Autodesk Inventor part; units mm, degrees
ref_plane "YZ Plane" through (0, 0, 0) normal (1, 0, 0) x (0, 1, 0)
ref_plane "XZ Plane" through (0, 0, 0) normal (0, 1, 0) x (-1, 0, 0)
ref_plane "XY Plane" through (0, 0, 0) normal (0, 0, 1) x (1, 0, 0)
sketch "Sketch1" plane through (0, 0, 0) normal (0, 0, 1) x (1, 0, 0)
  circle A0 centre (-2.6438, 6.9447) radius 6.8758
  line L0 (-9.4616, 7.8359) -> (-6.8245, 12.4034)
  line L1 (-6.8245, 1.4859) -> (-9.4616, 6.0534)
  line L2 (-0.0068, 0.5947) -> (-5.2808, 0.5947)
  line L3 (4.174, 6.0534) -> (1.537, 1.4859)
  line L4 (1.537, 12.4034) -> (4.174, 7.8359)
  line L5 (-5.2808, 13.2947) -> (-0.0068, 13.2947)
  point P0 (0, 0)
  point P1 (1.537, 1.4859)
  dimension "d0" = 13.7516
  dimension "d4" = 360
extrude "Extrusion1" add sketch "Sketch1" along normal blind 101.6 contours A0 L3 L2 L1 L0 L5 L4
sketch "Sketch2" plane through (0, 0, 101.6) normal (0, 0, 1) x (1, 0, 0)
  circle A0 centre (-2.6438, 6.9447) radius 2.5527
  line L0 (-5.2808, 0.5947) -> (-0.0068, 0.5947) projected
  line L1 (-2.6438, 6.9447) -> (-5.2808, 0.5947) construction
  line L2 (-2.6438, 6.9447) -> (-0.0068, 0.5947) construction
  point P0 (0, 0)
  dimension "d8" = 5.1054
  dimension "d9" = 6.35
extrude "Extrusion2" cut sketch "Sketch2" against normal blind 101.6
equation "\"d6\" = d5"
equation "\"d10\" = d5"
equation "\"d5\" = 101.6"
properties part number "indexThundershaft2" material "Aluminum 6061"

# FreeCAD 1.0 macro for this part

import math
import FreeCAD as App
import Part
import Sketcher
from FreeCAD import Vector
Q = App.Units.Quantity

doc = App.newDocument("Part")
body = doc.addObject("PartDesign::Body", "Body")

sketch1 = body.newObject("Sketcher::SketchObject", "Sketch")
sketch1.AttachmentSupport = (doc.getObject("XY_Plane"), [""])
sketch1.MapMode = "FlatFace"
sketch1.addGeometry([
    Part.ArcOfCircle(Part.Circle(Vector(-2.6438, 6.9447, 0), Vector(0, 0, 1), 6.8758), math.radians(-7.448114), math.radians(7.447287)),
    Part.LineSegment(Vector(4.174, 7.8359, 0), Vector(1.537, 12.4034, 0)),
    Part.ArcOfCircle(Part.Circle(Vector(-2.6438, 6.9447, 0), Vector(0, 0, 1), 6.8758), math.radians(52.551618), math.radians(67.448081)),
    Part.LineSegment(Vector(-0.0068, 13.2947, 0), Vector(-5.2808, 13.2947, 0)),
    Part.ArcOfCircle(Part.Circle(Vector(-2.6438, 6.9447, 0), Vector(0, 0, 1), 6.8758), math.radians(112.551919), math.radians(127.447721)),
    Part.LineSegment(Vector(-6.8245, 12.4034, 0), Vector(-9.4616, 7.8359, 0)),
    Part.ArcOfCircle(Part.Circle(Vector(-2.6438, 6.9447, 0), Vector(0, 0, 1), 6.8758), math.radians(172.552713), math.radians(187.448114)),
    Part.LineSegment(Vector(-9.4616, 6.0534, 0), Vector(-6.8245, 1.4859, 0)),
    Part.ArcOfCircle(Part.Circle(Vector(-2.6438, 6.9447, 0), Vector(0, 0, 1), 6.8758), math.radians(-127.447214), math.radians(-112.551919)),
    Part.LineSegment(Vector(-5.2808, 0.5947, 0), Vector(-0.0068, 0.5947, 0)),
    Part.ArcOfCircle(Part.Circle(Vector(-2.6438, 6.9447, 0), Vector(0, 0, 1), 6.8758), math.radians(-67.448081), math.radians(-52.552124)),
    Part.LineSegment(Vector(1.537, 1.4859, 0), Vector(4.174, 6.0534, 0)),
], False)
sketch1.addConstraint([
    Sketcher.Constraint("Coincident", 0, 2, 1, 1),
    Sketcher.Constraint("Coincident", 1, 2, 2, 1),
    Sketcher.Constraint("Coincident", 2, 2, 3, 1),
    Sketcher.Constraint("Coincident", 3, 2, 4, 1),
    Sketcher.Constraint("Coincident", 4, 2, 5, 1),
    Sketcher.Constraint("Coincident", 5, 2, 6, 1),
    Sketcher.Constraint("Coincident", 6, 2, 7, 1),
    Sketcher.Constraint("Coincident", 7, 2, 8, 1),
    Sketcher.Constraint("Coincident", 8, 2, 9, 1),
    Sketcher.Constraint("Coincident", 9, 2, 10, 1),
    Sketcher.Constraint("Coincident", 10, 2, 11, 1),
    Sketcher.Constraint("Coincident", 11, 2, 0, 1),
    Sketcher.Constraint("Horizontal", 3),
    Sketcher.Constraint("Horizontal", 9),
    Sketcher.Constraint("Coincident", 2, 3, 0, 3),
    Sketcher.Constraint("Coincident", 4, 3, 0, 3),
    Sketcher.Constraint("Coincident", 6, 3, 0, 3),
    Sketcher.Constraint("Coincident", 8, 3, 0, 3),
    Sketcher.Constraint("Coincident", 10, 3, 0, 3),
    Sketcher.Constraint("Equal", 0, 2),
    Sketcher.Constraint("Equal", 2, 4),
    Sketcher.Constraint("Equal", 4, 6),
    Sketcher.Constraint("Equal", 6, 8),
    Sketcher.Constraint("Equal", 8, 10),
    Sketcher.Constraint("Parallel", 1, 7),
    Sketcher.Constraint("Parallel", 5, 11),
    Sketcher.Constraint("Horizontal", 1, 2, 4, 2),
    Sketcher.Constraint("Horizontal", 0, 2, 5, 2),
    Sketcher.Constraint("Horizontal", 7, 2, 10, 2),
    Sketcher.Constraint("Vertical", 5, 2, 6, 2),
    Sketcher.Constraint("Vertical", 3, 2, 8, 2),
    Sketcher.Constraint("Radius", 0, Q("0.2707 in")),
    Sketcher.Constraint("Angle", 1, Q("119.9996 deg")),
    Sketcher.Constraint("DistanceY", 0, 3, 2, 2, Q("0.25 in")),
    Sketcher.Constraint("DistanceY", 10, 2, 0, 2, Q("0.25 in")),
    Sketcher.Constraint("DistanceY", -1, 1, 0, 2, Q("0.3085 in")),
    Sketcher.Constraint("DistanceX", -1, 1, 1, 2, Q("0.0605 in")),
])
pad1 = body.newObject("PartDesign::Pad", "Pad")
pad1.Profile = sketch1
pad1.Length = Q("4 in")

sketch2 = body.newObject("Sketcher::SketchObject", "Sketch001")
sketch2.AttachmentSupport = (doc.getObject("XY_Plane"), [""])
sketch2.MapMode = "FlatFace"
sketch2.AttachmentOffset = App.Placement(Vector(0, 0, 4 * 25.4), App.Rotation())
sketch2.addGeometry(Part.Circle(Vector(-2.6438, 6.9447, 0), Vector(0, 0, 1), 2.5527), False)
sketch2.addConstraint([
    Sketcher.Constraint("Diameter", 0, Q("0.201 in")),
    Sketcher.Constraint("DistanceX", 0, 3, -1, 1, Q("2.6438 mm")),
    Sketcher.Constraint("DistanceY", -1, 1, 0, 3, Q("6.9447 mm")),
])
pocket1 = body.newObject("PartDesign::Pocket", "Pocket")
pocket1.Profile = sketch2
pocket1.Length = Q("4 in")

doc.recompute()
